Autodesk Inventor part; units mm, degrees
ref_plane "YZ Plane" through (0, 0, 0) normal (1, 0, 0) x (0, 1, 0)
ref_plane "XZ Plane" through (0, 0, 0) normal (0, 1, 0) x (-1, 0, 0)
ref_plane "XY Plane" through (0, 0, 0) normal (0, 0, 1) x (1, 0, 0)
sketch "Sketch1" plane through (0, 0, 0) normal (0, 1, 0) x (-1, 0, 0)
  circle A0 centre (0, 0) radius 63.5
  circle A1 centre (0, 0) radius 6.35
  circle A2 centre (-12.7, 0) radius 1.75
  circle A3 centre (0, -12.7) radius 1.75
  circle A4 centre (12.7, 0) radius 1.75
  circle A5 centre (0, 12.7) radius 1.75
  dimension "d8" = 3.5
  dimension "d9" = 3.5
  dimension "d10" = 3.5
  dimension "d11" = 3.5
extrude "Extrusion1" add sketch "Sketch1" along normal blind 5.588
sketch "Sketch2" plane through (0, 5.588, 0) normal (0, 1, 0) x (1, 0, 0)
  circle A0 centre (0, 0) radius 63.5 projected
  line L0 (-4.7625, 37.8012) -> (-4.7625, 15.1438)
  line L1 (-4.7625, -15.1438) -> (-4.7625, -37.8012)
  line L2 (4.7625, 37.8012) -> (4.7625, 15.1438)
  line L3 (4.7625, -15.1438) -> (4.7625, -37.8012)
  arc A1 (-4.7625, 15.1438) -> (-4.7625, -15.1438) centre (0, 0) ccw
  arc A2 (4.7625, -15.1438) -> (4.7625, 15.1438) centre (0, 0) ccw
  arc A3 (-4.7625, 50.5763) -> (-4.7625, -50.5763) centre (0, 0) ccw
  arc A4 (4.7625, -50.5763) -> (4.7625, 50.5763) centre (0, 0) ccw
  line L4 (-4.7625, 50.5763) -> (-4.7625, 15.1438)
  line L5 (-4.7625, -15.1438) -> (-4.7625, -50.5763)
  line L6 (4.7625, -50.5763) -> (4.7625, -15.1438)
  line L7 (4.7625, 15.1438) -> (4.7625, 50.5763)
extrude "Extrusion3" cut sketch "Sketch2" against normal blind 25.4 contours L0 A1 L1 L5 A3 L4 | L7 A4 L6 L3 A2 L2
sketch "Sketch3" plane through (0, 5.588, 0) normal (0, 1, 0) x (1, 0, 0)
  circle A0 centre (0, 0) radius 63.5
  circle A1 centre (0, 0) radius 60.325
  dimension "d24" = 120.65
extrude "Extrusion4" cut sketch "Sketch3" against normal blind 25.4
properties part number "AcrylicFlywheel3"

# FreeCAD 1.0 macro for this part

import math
import FreeCAD as App
import Part
import Sketcher
Q = App.Units.Quantity

doc = App.newDocument("Part")
body = doc.addObject("PartDesign::Body", "Body")

# Sketch on XZ plane
sketch1 = body.newObject("Sketcher::SketchObject", "Sketch")
sketch1.AttachmentSupport = (doc.getObject("XZ_Plane"), [""])
sketch1.MapMode = "FlatFace"
sketch1.addGeometry([
    Part.Circle(App.Vector(0, 0, 0), App.Vector(0, 0, 1), 63.5),  # 0
    Part.Circle(App.Vector(0, -12.7, 0), App.Vector(0, 0, 1), 1.75),  # 1
    Part.Circle(App.Vector(12.7, 0, 0), App.Vector(0, 0, 1), 1.75),  # 2
    Part.Circle(App.Vector(0, 0, 0), App.Vector(0, 0, 1), 6.35),  # 3
    Part.Circle(App.Vector(-12.7, 0, 0), App.Vector(0, 0, 1), 1.75),  # 4
    Part.Circle(App.Vector(0, 12.7, 0), App.Vector(0, 0, 1), 1.75),  # 5
], False)
sketch1.addConstraint([
    Sketcher.Constraint("Coincident", 0, 3, -1, 1),
    Sketcher.Constraint("Coincident", 3, 3, -1, 1),
    Sketcher.Constraint("Equal", 1, 2),
    Sketcher.Constraint("Equal", 2, 4),
    Sketcher.Constraint("Equal", 4, 5),
    Sketcher.Constraint("Symmetric", 2, 3, 4, 3, -1, 1),
    Sketcher.Constraint("Symmetric", 1, 3, 5, 3, -1, 1),
    Sketcher.Constraint("PointOnObject", 1, 3, -2),
    Sketcher.Constraint("PointOnObject", 2, 3, -1),
    Sketcher.Constraint("Diameter", 0, Q("5 in")),
    Sketcher.Constraint("Diameter", 1, Q("0.1378 in")),
    Sketcher.Constraint("Diameter", 3, Q("0.5 in")),
    Sketcher.Constraint("DistanceX", 4, 3, 2, 3, Q("1 in")),
    Sketcher.Constraint("DistanceY", 1, 3, 5, 3, Q("1 in")),
])
pad1 = body.newObject("PartDesign::Pad", "Pad")
pad1.Profile = sketch1
pad1.Length = Q("0.22 in")
pad1.Reversed = True

# Sketch on XZ plane
sketch2 = body.newObject("Sketcher::SketchObject", "Sketch001")
sketch2.AttachmentSupport = (doc.getObject("XZ_Plane"), [""])
sketch2.MapMode = "FlatFace"
sketch2.AttachmentOffset = App.Placement(App.Vector(0, 0, -0.22 * 25.4), App.Rotation())
sketch2.addGeometry([
    Part.LineSegment(App.Vector(-4.7625, -15.1438, 0), App.Vector(-4.7625, -50.5763, 0)),  # 0
    Part.ArcOfCircle(Part.Circle(App.Vector(0, 0, 0), App.Vector(0, 0, 1), 50.800035), math.radians(95.379375), math.radians(264.620625)),  # 1
    Part.LineSegment(App.Vector(-4.7625, 50.5763, 0), App.Vector(-4.7625, 15.1438, 0)),  # 2
    Part.ArcOfCircle(Part.Circle(App.Vector(0, 0, 0), App.Vector(0, 0, 1), 15.875014), math.radians(107.457587), math.radians(252.542413)),  # 3
    Part.LineSegment(App.Vector(4.7625, -50.5763, 0), App.Vector(4.7625, -15.1438, 0)),  # 4
    Part.ArcOfCircle(Part.Circle(App.Vector(0, 0, 0), App.Vector(0, 0, 1), 15.875014), math.radians(-72.542413), math.radians(72.542413)),  # 5
    Part.LineSegment(App.Vector(4.7625, 15.1438, 0), App.Vector(4.7625, 50.5763, 0)),  # 6
    Part.ArcOfCircle(Part.Circle(App.Vector(0, 0, 0), App.Vector(0, 0, 1), 50.800035), math.radians(-84.620625), math.radians(84.620625)),  # 7
], False)
sketch2.addConstraint([
    Sketcher.Constraint("Coincident", 0, 2, 1, 2),
    Sketcher.Constraint("Coincident", 1, 1, 2, 1),
    Sketcher.Constraint("Coincident", 2, 2, 3, 1),
    Sketcher.Constraint("Coincident", 3, 2, 0, 1),
    Sketcher.Constraint("Coincident", 4, 2, 5, 1),
    Sketcher.Constraint("Coincident", 5, 2, 6, 1),
    Sketcher.Constraint("Coincident", 6, 2, 7, 2),
    Sketcher.Constraint("Coincident", 7, 1, 4, 1),
    Sketcher.Constraint("Vertical", 0),
    Sketcher.Constraint("Vertical", 2),
    Sketcher.Constraint("Vertical", 4),
    Sketcher.Constraint("Vertical", 6),
    Sketcher.Constraint("Coincident", 1, 3, -1, 1),
    Sketcher.Constraint("Coincident", 3, 3, -1, 1),
    Sketcher.Constraint("Coincident", 5, 3, -1, 1),
    Sketcher.Constraint("Coincident", 7, 3, -1, 1),
    Sketcher.Constraint("Equal", 3, 5),
    Sketcher.Constraint("Equal", 1, 7),
    Sketcher.Constraint("Horizontal", 3, 2, 4, 2),
    Sketcher.Constraint("Horizontal", 2, 2, 5, 2),
    Sketcher.Constraint("Vertical", 0, 2, 1, 1),
    Sketcher.Constraint("Radius", 1, Q("2 in")),
    Sketcher.Constraint("Radius", 3, Q("0.625 in")),
    Sketcher.Constraint("DistanceX", 0, 2, -1, 1, Q("0.1875 in")),
])
pocket1 = body.newObject("PartDesign::Pocket", "Pocket")
pocket1.Profile = sketch2
pocket1.Length = Q("1 in")
pocket1.Reversed = True

# Sketch on XZ plane
sketch3 = body.newObject("Sketcher::SketchObject", "Sketch002")
sketch3.AttachmentSupport = (doc.getObject("XZ_Plane"), [""])
sketch3.MapMode = "FlatFace"
sketch3.AttachmentOffset = App.Placement(App.Vector(0, 0, -0.22 * 25.4), App.Rotation())
sketch3.addGeometry([
    Part.Circle(App.Vector(0, 0, 0), App.Vector(0, 0, 1), 63.5),
    Part.Circle(App.Vector(0, 0, 0), App.Vector(0, 0, 1), 60.325),
], False)
sketch3.addConstraint([
    Sketcher.Constraint("Coincident", 0, 3, -1, 1),
    Sketcher.Constraint("Coincident", 1, 3, -1, 1),
    Sketcher.Constraint("Diameter", 1, Q("4.75 in")),
    Sketcher.Constraint("Diameter", 0, Q("5 in")),
])
pocket2 = body.newObject("PartDesign::Pocket", "Pocket001")
pocket2.Profile = sketch3
pocket2.Length = Q("1 in")
pocket2.Reversed = True

doc.recompute()
